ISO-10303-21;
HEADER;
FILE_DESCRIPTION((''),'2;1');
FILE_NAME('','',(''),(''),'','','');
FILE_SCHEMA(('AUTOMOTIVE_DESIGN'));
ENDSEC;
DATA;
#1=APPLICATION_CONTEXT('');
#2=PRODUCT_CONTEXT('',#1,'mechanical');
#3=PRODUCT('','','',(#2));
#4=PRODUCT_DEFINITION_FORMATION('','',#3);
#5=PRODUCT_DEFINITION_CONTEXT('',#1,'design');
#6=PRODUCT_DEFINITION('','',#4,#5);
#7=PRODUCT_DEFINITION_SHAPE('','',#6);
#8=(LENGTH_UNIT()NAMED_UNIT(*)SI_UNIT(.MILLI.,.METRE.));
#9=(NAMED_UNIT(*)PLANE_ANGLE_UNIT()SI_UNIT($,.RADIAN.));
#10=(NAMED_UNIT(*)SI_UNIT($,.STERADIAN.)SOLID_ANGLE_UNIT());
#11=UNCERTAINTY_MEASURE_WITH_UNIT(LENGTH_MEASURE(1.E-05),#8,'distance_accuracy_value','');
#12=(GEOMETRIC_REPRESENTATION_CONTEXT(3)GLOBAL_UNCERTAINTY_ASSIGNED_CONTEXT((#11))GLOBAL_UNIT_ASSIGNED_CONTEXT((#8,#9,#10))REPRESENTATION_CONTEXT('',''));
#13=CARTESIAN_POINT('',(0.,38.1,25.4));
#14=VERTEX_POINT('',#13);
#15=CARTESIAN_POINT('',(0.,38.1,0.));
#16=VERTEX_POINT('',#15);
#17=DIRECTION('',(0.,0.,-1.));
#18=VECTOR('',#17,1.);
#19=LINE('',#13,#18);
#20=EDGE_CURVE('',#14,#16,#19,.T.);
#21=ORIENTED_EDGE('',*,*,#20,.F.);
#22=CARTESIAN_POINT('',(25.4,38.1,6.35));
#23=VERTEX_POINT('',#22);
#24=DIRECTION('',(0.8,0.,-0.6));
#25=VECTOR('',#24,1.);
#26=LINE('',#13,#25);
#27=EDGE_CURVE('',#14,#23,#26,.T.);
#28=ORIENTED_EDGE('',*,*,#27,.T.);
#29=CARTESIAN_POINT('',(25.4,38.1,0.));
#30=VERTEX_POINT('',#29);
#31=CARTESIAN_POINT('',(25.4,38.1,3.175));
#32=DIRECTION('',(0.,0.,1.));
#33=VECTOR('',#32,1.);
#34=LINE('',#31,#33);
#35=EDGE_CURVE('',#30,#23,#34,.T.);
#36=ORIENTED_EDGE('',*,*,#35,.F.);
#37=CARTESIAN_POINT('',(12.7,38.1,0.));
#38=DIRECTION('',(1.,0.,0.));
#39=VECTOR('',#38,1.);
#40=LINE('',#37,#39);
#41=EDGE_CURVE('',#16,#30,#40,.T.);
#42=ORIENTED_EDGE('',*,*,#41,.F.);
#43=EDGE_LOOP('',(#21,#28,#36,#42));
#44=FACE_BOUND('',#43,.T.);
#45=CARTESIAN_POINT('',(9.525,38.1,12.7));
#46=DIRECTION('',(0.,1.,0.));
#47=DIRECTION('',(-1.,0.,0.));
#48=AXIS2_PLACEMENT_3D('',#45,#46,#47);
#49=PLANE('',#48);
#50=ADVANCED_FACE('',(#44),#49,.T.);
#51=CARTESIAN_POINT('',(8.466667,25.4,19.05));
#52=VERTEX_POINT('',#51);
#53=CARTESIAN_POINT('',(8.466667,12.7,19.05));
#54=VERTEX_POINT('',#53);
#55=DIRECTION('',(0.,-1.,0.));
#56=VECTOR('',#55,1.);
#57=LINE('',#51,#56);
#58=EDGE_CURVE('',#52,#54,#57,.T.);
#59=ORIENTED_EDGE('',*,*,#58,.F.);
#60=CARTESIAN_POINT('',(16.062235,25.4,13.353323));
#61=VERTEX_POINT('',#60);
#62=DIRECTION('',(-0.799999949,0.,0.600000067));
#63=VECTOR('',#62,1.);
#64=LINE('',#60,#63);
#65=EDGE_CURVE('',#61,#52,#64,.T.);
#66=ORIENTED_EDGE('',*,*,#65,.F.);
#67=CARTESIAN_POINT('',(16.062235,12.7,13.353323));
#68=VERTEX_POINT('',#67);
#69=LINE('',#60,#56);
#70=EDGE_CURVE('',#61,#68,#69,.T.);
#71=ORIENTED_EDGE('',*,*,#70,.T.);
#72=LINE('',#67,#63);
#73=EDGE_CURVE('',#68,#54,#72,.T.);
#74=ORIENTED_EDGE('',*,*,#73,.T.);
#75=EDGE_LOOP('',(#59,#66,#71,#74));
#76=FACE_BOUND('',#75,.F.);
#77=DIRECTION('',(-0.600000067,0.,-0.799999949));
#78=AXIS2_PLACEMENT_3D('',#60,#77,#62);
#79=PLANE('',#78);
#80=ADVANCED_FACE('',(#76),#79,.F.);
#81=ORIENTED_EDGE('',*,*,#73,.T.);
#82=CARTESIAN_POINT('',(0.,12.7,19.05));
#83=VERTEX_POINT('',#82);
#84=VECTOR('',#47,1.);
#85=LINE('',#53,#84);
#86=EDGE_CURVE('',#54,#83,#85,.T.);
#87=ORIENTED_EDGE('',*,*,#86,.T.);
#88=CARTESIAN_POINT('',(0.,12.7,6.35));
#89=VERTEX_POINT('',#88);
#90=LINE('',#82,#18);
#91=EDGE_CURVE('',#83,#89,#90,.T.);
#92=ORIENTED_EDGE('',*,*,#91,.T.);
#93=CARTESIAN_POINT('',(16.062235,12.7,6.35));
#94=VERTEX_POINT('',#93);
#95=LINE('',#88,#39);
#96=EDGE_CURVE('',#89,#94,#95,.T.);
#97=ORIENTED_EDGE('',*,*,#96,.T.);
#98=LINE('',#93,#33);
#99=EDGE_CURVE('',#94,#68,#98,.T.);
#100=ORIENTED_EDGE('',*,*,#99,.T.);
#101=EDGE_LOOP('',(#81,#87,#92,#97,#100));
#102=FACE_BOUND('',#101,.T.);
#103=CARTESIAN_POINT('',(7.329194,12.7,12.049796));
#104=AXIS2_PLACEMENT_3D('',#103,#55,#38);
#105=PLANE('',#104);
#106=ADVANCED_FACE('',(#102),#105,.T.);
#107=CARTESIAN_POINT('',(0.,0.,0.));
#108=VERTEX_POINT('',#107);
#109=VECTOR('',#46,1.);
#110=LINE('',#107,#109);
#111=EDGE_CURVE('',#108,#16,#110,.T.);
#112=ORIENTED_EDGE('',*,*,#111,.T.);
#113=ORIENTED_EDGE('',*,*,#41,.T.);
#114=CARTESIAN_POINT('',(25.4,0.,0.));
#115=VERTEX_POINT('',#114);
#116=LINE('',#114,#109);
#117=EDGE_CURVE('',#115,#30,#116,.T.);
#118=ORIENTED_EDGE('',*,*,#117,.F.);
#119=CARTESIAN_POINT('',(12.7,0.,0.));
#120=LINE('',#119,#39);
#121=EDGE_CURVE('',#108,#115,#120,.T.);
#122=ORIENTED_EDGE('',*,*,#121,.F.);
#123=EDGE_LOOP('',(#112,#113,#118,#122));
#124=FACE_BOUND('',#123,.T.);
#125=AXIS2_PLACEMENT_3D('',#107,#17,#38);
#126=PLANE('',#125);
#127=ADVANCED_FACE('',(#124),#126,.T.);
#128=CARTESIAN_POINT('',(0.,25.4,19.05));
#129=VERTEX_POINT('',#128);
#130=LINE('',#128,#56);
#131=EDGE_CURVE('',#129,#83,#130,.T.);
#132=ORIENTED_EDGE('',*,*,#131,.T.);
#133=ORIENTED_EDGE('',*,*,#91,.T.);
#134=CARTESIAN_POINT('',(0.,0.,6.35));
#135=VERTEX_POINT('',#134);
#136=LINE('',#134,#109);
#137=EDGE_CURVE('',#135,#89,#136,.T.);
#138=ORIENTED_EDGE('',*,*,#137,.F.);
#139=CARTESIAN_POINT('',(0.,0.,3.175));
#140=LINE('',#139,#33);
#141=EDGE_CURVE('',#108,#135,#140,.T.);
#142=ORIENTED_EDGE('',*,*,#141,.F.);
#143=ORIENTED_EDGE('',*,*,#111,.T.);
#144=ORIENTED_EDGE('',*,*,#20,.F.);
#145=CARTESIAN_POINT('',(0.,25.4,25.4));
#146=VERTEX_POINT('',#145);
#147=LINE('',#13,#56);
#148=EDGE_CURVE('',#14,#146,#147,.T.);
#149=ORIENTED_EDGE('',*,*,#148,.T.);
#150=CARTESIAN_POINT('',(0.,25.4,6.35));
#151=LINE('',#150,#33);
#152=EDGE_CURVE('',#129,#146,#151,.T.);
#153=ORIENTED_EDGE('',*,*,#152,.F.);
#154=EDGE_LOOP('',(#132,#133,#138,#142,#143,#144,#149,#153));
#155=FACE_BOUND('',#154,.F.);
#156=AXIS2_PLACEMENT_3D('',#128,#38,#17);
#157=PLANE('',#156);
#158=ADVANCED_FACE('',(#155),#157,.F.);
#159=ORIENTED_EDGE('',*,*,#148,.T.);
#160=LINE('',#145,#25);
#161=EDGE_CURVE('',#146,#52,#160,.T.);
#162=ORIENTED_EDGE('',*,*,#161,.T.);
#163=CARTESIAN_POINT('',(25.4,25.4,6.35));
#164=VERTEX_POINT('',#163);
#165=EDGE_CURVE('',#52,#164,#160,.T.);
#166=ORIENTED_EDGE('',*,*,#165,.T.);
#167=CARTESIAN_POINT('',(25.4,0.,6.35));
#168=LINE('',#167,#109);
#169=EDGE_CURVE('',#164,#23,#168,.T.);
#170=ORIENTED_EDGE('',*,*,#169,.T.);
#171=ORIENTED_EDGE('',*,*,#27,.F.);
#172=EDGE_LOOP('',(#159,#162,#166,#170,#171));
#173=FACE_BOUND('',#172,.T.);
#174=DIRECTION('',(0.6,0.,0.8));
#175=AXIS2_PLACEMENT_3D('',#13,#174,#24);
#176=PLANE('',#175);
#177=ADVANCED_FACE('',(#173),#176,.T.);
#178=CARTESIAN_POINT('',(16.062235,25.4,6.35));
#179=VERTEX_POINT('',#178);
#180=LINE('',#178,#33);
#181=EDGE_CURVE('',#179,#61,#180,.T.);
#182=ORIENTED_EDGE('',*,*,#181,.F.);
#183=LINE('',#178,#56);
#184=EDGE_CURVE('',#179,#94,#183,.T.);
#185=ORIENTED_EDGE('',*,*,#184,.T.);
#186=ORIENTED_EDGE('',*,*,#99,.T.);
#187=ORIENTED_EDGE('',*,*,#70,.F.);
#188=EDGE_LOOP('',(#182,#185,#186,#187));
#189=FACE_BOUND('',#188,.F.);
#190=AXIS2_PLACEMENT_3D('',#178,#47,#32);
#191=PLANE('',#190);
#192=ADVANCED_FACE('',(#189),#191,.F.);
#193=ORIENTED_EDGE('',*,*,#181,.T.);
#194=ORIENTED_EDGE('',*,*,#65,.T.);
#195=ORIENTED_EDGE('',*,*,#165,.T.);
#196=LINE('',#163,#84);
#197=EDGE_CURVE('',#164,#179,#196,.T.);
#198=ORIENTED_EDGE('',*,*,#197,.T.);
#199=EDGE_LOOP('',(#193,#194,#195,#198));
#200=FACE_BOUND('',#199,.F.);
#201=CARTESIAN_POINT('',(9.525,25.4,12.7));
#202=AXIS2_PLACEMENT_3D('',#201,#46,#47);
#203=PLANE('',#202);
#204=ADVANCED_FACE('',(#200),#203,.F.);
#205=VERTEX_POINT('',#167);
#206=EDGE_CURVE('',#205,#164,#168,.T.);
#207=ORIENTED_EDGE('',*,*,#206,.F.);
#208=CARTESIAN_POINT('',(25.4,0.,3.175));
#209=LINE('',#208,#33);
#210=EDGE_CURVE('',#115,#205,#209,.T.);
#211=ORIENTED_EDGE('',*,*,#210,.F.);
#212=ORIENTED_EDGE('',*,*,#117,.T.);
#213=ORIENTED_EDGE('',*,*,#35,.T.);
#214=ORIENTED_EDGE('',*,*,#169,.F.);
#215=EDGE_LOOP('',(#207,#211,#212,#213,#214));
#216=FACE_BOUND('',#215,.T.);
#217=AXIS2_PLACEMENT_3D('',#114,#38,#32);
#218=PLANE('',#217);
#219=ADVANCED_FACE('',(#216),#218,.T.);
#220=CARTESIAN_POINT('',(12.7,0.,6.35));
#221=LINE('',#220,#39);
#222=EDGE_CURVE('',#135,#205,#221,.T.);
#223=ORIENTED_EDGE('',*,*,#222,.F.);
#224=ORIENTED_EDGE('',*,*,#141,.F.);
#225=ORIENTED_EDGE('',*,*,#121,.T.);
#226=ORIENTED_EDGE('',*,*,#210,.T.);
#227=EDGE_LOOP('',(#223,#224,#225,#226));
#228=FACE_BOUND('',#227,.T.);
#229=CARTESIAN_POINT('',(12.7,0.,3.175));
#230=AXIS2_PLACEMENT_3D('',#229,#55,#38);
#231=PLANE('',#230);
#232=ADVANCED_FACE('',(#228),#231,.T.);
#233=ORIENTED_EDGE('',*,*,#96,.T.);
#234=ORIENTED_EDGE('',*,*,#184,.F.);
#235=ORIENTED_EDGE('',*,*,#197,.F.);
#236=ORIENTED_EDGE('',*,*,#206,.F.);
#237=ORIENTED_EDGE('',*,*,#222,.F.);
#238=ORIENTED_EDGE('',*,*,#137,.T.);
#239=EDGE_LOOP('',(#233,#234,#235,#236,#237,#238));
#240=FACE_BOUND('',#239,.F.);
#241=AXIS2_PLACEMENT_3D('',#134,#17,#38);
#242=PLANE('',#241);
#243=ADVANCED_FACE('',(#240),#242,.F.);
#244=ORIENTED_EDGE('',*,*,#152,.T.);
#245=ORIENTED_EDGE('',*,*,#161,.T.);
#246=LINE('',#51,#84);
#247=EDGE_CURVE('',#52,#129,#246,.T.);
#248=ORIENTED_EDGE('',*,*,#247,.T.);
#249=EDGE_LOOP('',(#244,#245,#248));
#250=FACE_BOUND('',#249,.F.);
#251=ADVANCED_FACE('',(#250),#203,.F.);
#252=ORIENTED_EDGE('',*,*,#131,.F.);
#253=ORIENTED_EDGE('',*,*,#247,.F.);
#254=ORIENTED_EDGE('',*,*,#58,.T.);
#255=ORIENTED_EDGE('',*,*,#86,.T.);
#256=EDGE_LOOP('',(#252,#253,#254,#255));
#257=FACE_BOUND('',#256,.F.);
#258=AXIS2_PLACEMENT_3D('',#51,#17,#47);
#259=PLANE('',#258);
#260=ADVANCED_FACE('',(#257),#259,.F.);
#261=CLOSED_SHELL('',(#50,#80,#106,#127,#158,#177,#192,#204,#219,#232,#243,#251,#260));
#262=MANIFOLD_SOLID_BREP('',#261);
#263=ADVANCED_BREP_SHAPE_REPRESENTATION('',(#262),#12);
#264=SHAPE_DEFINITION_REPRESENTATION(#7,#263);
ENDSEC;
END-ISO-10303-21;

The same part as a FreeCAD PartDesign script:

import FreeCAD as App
import Part
import Sketcher

V = App.Vector
Q = App.Units.Quantity


def add_polygon(sketch, points):
    """Adds a closed chain of lines whose ends are joined by coincident constraints."""
    first, n = sketch.GeometryCount, len(points)
    for a, b in zip(points, points[1:] + points[:1]):
        sketch.addGeometry(Part.LineSegment(App.Vector(*a, 0), App.Vector(*b, 0)), False)
    for i in range(n):
        sketch.addConstraint(Sketcher.Constraint("Coincident", first + i, 2, first + (i + 1) % n, 1))

doc = App.newDocument("Part")
body = doc.addObject("PartDesign::Body", "Body")

sketch1 = body.newObject("Sketcher::SketchObject", "Sketch")
sketch1.AttachmentSupport = (doc.getObject("XZ_Plane"), [""])
sketch1.MapMode = "FlatFace"
add_polygon(sketch1, [(0, 6.35), (0, 0), (25.4, 0), (25.4, 6.35)])
sketch1.addConstraint([
    Sketcher.Constraint("Vertical", 0),
    Sketcher.Constraint("Horizontal", 1),
    Sketcher.Constraint("Vertical", 2),
    Sketcher.Constraint("Horizontal", 3),
    Sketcher.Constraint("Coincident", 0, 2, -1, 1),
    Sketcher.Constraint("DistanceX", 1, 1, 1, 2, Q("1 in")),
    Sketcher.Constraint("DistanceY", 0, 2, 0, 1, Q("0.25 in")),
])
pad1 = body.newObject("PartDesign::Pad", "Pad")
pad1.Profile = sketch1
pad1.Length = Q("1.5 in")
pad1.Reversed = True

sketch2 = body.newObject("Sketcher::SketchObject", "Sketch001")
sketch2.AttachmentSupport = (doc.getObject("XZ_Plane"), [""])
sketch2.MapMode = "FlatFace"
sketch2.AttachmentOffset = App.Placement(V(0, 0, -1.5 * 25.4), App.Rotation())
add_polygon(sketch2, [(25.4, 6.35), (0, 6.35), (0, 25.4)])
sketch2.addConstraint([
    Sketcher.Constraint("Horizontal", 0),
    Sketcher.Constraint("Vertical", 1),
    Sketcher.Constraint("PointOnObject", 0, 2, -2),
    Sketcher.Constraint("DistanceX", 0, 2, 0, 1, Q("1 in")),
    Sketcher.Constraint("DistanceY", -1, 1, 1, 2, Q("1 in")),
    Sketcher.Constraint("DistanceY", 1, 1, 1, 2, Q("0.75 in")),
])
pad2 = body.newObject("PartDesign::Pad", "Pad001")
pad2.Profile = sketch2
pad2.Length = Q("0.5 in")

sketch3 = body.newObject("Sketcher::SketchObject", "Sketch002")
sketch3.AttachmentSupport = (doc.getObject("XZ_Plane"), [""])
sketch3.MapMode = "FlatFace"
sketch3.AttachmentOffset = App.Placement(V(0, 0, -1 * 25.4), App.Rotation())
add_polygon(sketch3, [(0, 19.05), (0, 6.35), (16.062235, 6.35), (16.062235, 13.353323), (8.466667, 19.05)])
sketch3.addConstraint([
    Sketcher.Constraint("Vertical", 0),
    Sketcher.Constraint("Horizontal", 1),
    Sketcher.Constraint("Vertical", 2),
    Sketcher.Constraint("Horizontal", 4),
    Sketcher.Constraint("PointOnObject", 0, 2, -2),
    Sketcher.Constraint("DistanceY", 0, 2, 0, 1, Q("0.5 in")),
    Sketcher.Constraint("DistanceY", -1, 1, 0, 2, Q("0.25 in")),
    Sketcher.Constraint("Distance", 3, 9.494461),
    Sketcher.Constraint("DistanceX", 1, 1, 1, 2, 16.062235),
    Sketcher.Constraint("DistanceX", 4, 2, 4, 1, 8.466667),
])
pad3 = body.newObject("PartDesign::Pad", "Pad002")
pad3.Profile = sketch3
pad3.Length = Q("0.5 in")

doc.recompute()
